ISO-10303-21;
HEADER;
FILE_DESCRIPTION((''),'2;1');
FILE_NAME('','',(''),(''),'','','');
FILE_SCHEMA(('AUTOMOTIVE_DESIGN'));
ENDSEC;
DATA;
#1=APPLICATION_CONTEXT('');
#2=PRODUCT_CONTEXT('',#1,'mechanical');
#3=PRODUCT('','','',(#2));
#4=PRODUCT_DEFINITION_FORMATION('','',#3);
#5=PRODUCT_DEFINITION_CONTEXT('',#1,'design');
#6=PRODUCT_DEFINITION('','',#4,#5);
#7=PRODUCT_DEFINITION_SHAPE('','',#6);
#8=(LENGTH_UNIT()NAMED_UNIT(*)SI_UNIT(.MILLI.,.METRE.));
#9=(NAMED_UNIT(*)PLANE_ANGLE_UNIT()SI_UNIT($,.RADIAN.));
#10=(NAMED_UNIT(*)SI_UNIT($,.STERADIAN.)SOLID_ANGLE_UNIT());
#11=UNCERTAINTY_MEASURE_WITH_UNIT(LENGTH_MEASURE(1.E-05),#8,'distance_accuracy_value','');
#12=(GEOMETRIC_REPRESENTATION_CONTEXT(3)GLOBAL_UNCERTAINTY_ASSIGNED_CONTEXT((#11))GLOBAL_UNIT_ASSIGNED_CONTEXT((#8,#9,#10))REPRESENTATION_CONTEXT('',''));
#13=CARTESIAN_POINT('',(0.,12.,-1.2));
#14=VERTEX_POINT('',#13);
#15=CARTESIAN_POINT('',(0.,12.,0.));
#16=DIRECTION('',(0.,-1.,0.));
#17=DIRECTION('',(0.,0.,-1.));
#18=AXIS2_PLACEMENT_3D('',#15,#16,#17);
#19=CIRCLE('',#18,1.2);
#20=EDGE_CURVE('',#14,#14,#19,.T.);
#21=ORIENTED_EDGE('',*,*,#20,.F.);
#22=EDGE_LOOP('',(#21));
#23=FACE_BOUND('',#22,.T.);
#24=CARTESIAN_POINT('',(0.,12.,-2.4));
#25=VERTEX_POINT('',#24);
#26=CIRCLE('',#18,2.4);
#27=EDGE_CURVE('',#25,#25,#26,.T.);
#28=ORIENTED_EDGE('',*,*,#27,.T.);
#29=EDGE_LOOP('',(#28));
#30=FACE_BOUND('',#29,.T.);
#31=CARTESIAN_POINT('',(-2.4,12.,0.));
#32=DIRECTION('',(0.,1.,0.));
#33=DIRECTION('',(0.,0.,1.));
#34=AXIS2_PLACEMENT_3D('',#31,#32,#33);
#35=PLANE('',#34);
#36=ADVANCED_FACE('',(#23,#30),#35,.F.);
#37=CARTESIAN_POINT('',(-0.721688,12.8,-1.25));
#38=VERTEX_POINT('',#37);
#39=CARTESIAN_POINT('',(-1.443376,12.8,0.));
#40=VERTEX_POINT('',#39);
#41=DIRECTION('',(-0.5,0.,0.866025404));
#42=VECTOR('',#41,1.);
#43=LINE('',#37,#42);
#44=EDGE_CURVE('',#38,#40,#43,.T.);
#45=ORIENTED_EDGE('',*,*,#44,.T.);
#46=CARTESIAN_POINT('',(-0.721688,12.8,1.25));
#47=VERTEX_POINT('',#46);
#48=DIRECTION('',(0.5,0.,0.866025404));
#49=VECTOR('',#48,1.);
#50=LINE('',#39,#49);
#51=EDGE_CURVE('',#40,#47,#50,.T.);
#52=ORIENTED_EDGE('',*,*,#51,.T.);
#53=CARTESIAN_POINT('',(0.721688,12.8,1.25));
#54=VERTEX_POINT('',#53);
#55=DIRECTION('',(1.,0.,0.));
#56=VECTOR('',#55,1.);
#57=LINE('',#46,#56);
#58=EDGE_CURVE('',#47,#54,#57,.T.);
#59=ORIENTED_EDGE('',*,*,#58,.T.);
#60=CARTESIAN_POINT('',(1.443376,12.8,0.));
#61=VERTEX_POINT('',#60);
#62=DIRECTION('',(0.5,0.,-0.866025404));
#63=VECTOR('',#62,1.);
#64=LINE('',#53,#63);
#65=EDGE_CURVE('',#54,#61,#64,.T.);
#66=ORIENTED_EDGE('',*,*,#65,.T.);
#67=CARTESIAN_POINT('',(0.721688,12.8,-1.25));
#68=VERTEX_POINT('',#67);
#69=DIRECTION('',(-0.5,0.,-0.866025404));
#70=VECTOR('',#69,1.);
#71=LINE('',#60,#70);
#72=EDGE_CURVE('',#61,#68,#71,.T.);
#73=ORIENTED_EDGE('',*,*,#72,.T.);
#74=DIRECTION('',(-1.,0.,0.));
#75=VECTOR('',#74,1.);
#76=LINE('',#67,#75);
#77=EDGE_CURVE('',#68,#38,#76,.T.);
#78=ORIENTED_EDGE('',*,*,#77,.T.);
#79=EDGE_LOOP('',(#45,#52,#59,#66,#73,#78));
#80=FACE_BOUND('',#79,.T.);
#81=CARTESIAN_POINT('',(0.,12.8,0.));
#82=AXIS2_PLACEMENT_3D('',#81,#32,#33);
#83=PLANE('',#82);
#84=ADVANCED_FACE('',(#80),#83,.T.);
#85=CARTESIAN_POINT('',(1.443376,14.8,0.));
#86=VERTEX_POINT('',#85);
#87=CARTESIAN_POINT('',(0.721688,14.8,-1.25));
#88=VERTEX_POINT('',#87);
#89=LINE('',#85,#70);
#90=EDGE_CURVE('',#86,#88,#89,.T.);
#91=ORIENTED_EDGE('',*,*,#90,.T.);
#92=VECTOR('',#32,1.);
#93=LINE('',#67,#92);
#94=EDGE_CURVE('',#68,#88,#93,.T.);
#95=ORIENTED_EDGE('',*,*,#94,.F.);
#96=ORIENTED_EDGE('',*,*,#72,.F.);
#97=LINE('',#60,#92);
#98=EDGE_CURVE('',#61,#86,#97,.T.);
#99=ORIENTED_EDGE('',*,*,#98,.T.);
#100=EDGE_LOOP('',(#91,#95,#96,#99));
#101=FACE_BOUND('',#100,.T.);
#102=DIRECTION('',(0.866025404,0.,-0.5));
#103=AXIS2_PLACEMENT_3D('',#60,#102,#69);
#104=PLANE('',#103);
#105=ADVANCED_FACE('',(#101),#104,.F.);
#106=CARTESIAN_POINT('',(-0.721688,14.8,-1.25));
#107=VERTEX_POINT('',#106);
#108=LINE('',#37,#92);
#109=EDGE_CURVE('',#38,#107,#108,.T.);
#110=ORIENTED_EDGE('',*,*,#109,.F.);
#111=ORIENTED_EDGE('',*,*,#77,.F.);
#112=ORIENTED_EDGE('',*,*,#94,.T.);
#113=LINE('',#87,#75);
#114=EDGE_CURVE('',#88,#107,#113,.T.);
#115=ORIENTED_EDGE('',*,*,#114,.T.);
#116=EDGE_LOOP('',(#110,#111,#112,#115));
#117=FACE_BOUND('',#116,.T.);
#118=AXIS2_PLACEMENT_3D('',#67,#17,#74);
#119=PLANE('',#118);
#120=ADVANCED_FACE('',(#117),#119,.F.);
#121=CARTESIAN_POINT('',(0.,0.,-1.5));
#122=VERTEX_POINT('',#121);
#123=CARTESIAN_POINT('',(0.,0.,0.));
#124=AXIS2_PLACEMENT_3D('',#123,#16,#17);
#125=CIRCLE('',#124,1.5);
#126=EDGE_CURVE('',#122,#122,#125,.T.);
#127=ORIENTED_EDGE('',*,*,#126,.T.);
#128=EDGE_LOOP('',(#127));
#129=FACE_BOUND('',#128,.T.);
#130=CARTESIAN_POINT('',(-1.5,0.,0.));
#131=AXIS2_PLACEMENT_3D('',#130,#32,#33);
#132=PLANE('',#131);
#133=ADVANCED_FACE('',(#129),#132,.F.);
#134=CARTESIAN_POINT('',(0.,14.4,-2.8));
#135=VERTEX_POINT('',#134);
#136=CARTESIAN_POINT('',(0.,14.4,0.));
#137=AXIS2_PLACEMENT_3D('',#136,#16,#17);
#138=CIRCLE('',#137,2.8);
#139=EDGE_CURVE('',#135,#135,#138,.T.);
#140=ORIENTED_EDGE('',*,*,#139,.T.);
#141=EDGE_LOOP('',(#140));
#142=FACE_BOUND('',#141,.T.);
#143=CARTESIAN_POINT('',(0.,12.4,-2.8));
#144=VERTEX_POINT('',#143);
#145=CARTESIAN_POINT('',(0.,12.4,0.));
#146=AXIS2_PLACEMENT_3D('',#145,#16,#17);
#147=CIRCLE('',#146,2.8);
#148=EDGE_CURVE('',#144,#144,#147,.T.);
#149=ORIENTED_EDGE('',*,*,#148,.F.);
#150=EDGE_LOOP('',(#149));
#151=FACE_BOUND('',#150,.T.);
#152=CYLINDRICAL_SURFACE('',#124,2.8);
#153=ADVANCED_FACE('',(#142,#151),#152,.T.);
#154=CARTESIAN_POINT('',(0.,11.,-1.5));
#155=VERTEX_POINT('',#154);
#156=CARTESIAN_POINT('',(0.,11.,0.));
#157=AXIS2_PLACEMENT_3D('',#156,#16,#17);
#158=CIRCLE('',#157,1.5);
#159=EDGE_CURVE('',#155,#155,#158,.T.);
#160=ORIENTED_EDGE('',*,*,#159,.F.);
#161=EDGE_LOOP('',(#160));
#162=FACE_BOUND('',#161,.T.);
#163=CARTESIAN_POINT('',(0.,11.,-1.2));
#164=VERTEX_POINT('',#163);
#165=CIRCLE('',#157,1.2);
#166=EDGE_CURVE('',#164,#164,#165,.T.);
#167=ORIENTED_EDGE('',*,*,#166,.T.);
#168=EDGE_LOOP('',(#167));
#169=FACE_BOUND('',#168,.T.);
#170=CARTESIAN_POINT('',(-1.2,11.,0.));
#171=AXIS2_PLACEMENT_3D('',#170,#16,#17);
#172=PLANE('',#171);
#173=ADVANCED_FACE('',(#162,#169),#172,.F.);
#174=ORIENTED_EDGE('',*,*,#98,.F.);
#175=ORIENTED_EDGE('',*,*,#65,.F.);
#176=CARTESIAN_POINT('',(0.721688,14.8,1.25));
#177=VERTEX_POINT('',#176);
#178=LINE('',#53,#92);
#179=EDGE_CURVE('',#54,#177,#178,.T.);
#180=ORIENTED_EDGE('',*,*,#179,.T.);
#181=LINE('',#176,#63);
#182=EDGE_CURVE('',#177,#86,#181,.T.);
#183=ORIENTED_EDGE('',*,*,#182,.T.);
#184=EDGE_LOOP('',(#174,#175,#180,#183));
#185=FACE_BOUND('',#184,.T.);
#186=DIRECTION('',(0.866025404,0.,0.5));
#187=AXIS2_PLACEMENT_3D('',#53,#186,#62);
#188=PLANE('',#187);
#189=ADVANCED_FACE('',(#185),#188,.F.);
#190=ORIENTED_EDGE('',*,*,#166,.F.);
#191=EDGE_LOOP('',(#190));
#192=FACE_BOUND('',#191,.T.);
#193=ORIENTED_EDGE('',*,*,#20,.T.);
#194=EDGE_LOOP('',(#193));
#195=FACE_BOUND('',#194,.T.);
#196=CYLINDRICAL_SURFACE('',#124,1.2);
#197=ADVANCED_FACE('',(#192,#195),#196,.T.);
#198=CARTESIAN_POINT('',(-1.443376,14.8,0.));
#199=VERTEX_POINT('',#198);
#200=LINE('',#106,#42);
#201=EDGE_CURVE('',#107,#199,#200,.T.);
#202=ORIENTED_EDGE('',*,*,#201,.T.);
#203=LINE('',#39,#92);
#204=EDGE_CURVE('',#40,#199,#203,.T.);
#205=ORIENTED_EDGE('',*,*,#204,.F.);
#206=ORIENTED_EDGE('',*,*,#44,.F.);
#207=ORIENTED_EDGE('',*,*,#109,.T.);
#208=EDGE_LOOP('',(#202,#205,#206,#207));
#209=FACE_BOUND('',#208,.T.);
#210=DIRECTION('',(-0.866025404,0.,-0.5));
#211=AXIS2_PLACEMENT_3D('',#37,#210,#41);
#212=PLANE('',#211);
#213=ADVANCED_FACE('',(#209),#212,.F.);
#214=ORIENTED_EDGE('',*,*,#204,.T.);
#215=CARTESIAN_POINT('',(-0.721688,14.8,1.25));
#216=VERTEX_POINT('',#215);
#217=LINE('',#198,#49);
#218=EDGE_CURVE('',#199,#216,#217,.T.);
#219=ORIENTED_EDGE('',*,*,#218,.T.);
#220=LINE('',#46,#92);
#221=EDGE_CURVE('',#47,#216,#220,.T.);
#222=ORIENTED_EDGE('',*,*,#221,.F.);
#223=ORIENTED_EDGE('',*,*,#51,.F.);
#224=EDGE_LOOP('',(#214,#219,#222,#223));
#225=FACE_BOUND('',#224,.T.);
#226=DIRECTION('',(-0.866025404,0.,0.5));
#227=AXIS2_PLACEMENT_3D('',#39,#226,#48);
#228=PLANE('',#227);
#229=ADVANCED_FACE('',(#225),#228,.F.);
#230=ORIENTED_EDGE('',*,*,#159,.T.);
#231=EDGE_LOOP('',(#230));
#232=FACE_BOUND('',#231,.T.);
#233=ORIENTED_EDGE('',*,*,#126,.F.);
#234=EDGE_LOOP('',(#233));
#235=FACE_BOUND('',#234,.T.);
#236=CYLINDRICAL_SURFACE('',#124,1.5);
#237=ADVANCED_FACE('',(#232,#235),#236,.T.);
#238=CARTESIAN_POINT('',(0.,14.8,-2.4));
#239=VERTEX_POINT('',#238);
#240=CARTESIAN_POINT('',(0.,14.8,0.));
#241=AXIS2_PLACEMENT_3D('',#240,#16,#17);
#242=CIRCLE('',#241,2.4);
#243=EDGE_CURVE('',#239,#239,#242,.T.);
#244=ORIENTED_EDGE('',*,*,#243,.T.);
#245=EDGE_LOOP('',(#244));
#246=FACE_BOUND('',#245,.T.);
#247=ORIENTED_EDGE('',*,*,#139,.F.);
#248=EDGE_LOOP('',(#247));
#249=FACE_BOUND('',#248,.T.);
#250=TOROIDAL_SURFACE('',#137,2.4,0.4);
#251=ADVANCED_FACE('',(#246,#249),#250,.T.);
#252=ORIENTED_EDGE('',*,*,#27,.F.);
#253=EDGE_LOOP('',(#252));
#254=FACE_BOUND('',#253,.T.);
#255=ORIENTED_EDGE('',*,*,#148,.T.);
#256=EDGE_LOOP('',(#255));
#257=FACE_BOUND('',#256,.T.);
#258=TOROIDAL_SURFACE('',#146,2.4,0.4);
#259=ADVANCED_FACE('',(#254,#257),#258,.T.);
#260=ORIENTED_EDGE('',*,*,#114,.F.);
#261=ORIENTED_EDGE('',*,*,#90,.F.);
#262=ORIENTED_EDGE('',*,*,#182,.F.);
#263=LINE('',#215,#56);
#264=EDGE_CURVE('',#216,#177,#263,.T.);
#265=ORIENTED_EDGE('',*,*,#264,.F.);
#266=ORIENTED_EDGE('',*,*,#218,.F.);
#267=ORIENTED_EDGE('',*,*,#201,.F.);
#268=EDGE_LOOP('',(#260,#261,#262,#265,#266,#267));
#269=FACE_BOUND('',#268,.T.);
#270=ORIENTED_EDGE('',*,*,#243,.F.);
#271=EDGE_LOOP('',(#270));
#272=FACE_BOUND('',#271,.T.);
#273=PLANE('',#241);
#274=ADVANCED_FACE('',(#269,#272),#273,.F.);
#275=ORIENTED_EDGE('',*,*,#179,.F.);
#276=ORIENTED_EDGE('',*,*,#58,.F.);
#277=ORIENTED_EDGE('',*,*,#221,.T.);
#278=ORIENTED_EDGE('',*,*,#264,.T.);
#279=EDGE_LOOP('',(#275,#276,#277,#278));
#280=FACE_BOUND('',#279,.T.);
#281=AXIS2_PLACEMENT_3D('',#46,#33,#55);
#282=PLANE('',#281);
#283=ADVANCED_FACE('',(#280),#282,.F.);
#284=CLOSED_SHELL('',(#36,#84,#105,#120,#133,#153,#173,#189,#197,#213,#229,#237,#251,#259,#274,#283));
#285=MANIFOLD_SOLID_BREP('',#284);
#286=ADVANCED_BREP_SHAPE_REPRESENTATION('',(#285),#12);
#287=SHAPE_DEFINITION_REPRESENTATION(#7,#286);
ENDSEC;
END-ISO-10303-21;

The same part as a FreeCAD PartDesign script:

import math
import FreeCAD as App
import Part
import Sketcher
Q = App.Units.Quantity


def add_polygon(sketch, points):
    """Adds a closed chain of lines whose ends are joined by coincident constraints."""
    first, n = sketch.GeometryCount, len(points)
    for a, b in zip(points, points[1:] + points[:1]):
        sketch.addGeometry(Part.LineSegment(App.Vector(*a, 0), App.Vector(*b, 0)), False)
    for i in range(n):
        sketch.addConstraint(Sketcher.Constraint("Coincident", first + i, 2, first + (i + 1) % n, 1))

doc = App.newDocument("Part")
body = doc.addObject("PartDesign::Body", "Body")

# Sketch on XY plane
sketch1 = body.newObject("Sketcher::SketchObject", "Sketch")
sketch1.AttachmentSupport = (doc.getObject("XY_Plane"), [""])
sketch1.MapMode = "FlatFace"
sketch1.addGeometry([
    Part.LineSegment(App.Vector(0, 14.8, 0), App.Vector(-2.4, 14.8, 0)),  # 0
    Part.ArcOfCircle(Part.Circle(App.Vector(-2.4, 14.4, 0), App.Vector(0, 0, 1), 0.4), math.radians(90), math.radians(180)),  # 1
    Part.LineSegment(App.Vector(-2.8, 14.4, 0), App.Vector(-2.8, 12.4, 0)),  # 2
    Part.ArcOfCircle(Part.Circle(App.Vector(-2.4, 12.4, 0), App.Vector(0, 0, 1), 0.4), math.radians(-180), math.radians(-90)),  # 3
    Part.LineSegment(App.Vector(-2.4, 12, 0), App.Vector(-1.2, 12, 0)),  # 4
    Part.LineSegment(App.Vector(-1.2, 12, 0), App.Vector(-1.2, 11, 0)),  # 5
    Part.LineSegment(App.Vector(-1.2, 11, 0), App.Vector(-1.5, 11, 0)),  # 6
    Part.LineSegment(App.Vector(-1.5, 11, 0), App.Vector(-1.5, 0, 0)),  # 7
    Part.LineSegment(App.Vector(-1.5, 0, 0), App.Vector(0, 0, 0)),  # 8
    Part.LineSegment(App.Vector(0, 0, 0), App.Vector(0, 14.8, 0)),  # 9
], False)
sketch1.addConstraint([
    Sketcher.Constraint("Tangent", 0, 2, 1, 1),
    Sketcher.Constraint("Tangent", 1, 2, 2, 1),
    Sketcher.Constraint("Tangent", 2, 2, 3, 1),
    Sketcher.Constraint("Tangent", 3, 2, 4, 1),
    Sketcher.Constraint("Coincident", 4, 2, 5, 1),
    Sketcher.Constraint("Coincident", 5, 2, 6, 1),
    Sketcher.Constraint("Coincident", 6, 2, 7, 1),
    Sketcher.Constraint("Coincident", 7, 2, 8, 1),
    Sketcher.Constraint("Coincident", 8, 2, 9, 1),
    Sketcher.Constraint("Coincident", 9, 2, 0, 1),
    Sketcher.Constraint("Horizontal", 0),
    Sketcher.Constraint("Vertical", 2),
    Sketcher.Constraint("Horizontal", 4),
    Sketcher.Constraint("Vertical", 5),
    Sketcher.Constraint("Horizontal", 6),
    Sketcher.Constraint("Vertical", 7),
    Sketcher.Constraint("Horizontal", 8),
    Sketcher.Constraint("Vertical", 9),
    Sketcher.Constraint("Coincident", 8, 2, -1, 1),
    Sketcher.Constraint("Equal", 1, 3),
    Sketcher.Constraint("Radius", 1, Q("0.4 mm")),
    Sketcher.Constraint("DistanceY", 2, 2, 2, 1, Q("2 mm")),
    Sketcher.Constraint("DistanceY", 5, 2, 5, 1, Q("1 mm")),
    Sketcher.Constraint("DistanceY", 7, 2, 7, 1, Q("11 mm")),
    Sketcher.Constraint("DistanceX", 0, 2, 0, 1, Q("2.4 mm")),
    Sketcher.Constraint("DistanceX", 4, 1, 4, 2, Q("1.2 mm")),
    Sketcher.Constraint("DistanceX", 6, 2, 6, 1, Q("0.3 mm")),
])
revolution = body.newObject("PartDesign::Revolution", "Revolution")
revolution.Profile = sketch1
revolution.ReferenceAxis = (sketch1, ["V_Axis"])
revolution.Angle = 360

# Sketch on XZ plane
sketch2 = body.newObject("Sketcher::SketchObject", "Sketch001")
sketch2.AttachmentSupport = (doc.getObject("XZ_Plane"), [""])
sketch2.MapMode = "FlatFace"
sketch2.AttachmentOffset = App.Placement(App.Vector(0, 0, -14.8), App.Rotation())
add_polygon(sketch2, [(-0.721688, -1.25), (-1.443376, 0), (-0.721688, 1.25), (0.721688, 1.25), (1.443376, 0), (0.721688, -1.25)])  # lines 0-5
sketch2.addConstraint([
    Sketcher.Constraint("Horizontal", 2),
    Sketcher.Constraint("Horizontal", 5),
    Sketcher.Constraint("Symmetric", 0, 2, 3, 2, -1, 1),
    Sketcher.Constraint("Symmetric", 1, 2, 4, 2, -1, 1),
    Sketcher.Constraint("PointOnObject", 0, 2, -1),
    Sketcher.Constraint("Parallel", 0, 3),
    Sketcher.Constraint("Vertical", 2, 2, 4, 2),
    Sketcher.Constraint("Angle", 0, Q("120 deg")),
    Sketcher.Constraint("DistanceY", 4, 2, 2, 2, Q("2.5 mm")),
    Sketcher.Constraint("DistanceX", 2, 1, 2, 2, Q("1.443376 mm")),
])
pocket1 = body.newObject("PartDesign::Pocket", "Pocket")
pocket1.Profile = sketch2
pocket1.Length = 2
pocket1.Reversed = True

doc.recompute()
